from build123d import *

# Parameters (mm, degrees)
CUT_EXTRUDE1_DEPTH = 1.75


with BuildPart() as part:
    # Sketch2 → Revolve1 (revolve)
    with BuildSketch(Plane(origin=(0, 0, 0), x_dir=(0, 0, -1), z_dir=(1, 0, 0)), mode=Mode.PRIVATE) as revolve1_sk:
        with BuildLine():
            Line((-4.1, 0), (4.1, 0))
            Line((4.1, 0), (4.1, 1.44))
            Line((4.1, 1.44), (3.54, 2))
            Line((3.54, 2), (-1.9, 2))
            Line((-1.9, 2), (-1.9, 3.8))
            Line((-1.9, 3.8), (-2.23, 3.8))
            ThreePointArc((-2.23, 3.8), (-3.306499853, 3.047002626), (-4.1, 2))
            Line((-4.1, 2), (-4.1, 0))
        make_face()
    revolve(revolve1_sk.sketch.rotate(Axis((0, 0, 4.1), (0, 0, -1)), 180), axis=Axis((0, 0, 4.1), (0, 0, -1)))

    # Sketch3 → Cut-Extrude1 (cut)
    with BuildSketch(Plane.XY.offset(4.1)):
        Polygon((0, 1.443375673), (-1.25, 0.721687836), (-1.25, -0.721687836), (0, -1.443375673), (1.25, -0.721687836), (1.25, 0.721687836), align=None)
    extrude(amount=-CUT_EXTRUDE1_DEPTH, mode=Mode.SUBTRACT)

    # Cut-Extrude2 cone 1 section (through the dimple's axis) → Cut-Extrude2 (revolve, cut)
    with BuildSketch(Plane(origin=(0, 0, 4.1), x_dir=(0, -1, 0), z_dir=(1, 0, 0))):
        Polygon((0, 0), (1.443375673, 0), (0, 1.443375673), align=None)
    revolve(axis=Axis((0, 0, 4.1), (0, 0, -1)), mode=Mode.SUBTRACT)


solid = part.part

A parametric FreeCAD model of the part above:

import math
import FreeCAD as App
import Part
import Sketcher
Q = App.Units.Quantity

doc = App.newDocument("Part")
body = doc.addObject("PartDesign::Body", "Body")

# Sketch on YZ plane
sketch1 = body.newObject("Sketcher::SketchObject", "Sketch")
sketch1.AttachmentSupport = (doc.getObject("YZ_Plane"), [""])
sketch1.MapMode = "FlatFace"
sketch1.addGeometry(Part.LineSegment(App.Vector(0, 4.1, 0), App.Vector(0, -4.1, 0)), False)
sketch1.addGeometry(Part.LineSegment(App.Vector(0, -4.1, 0), App.Vector(1.44, -4.1, 0)), False)
sketch1.addGeometry(Part.LineSegment(App.Vector(1.44, -4.1, 0), App.Vector(2, -3.54, 0)), False)
sketch1.addGeometry(Part.LineSegment(App.Vector(2, -3.54, 0), App.Vector(2, 1.9, 0)), False)
sketch1.addGeometry(Part.LineSegment(App.Vector(2, 1.9, 0), App.Vector(3.8, 1.9, 0)), False)
sketch1.addGeometry(Part.LineSegment(App.Vector(3.8, 1.9, 0), App.Vector(3.8, 2.23, 0)), False)
sketch1.addGeometry(Part.ArcOfCircle(Part.Circle(App.Vector(0, 0.373556, 0), App.Vector(0, 0, 1), 4.22923), math.radians(26.03726), math.radians(61.777335)), False)
sketch1.addGeometry(Part.LineSegment(App.Vector(2, 4.1, 0), App.Vector(0, 4.1, 0)), False)
sketch1.addConstraint(Sketcher.Constraint("Coincident", 0, 2, 1, 1))
sketch1.addConstraint(Sketcher.Constraint("Coincident", 1, 2, 2, 1))
sketch1.addConstraint(Sketcher.Constraint("Coincident", 2, 2, 3, 1))
sketch1.addConstraint(Sketcher.Constraint("Coincident", 3, 2, 4, 1))
sketch1.addConstraint(Sketcher.Constraint("Coincident", 4, 2, 5, 1))
sketch1.addConstraint(Sketcher.Constraint("Coincident", 5, 2, 6, 1))
sketch1.addConstraint(Sketcher.Constraint("Coincident", 6, 2, 7, 1))
sketch1.addConstraint(Sketcher.Constraint("Coincident", 7, 2, 0, 1))
sketch1.addConstraint(Sketcher.Constraint("Vertical", 0))
sketch1.addConstraint(Sketcher.Constraint("Horizontal", 1))
sketch1.addConstraint(Sketcher.Constraint("Vertical", 3))
sketch1.addConstraint(Sketcher.Constraint("Horizontal", 4))
sketch1.addConstraint(Sketcher.Constraint("Vertical", 5))
sketch1.addConstraint(Sketcher.Constraint("Horizontal", 7))
sketch1.addConstraint(Sketcher.Constraint("Symmetric", 0, 2, 7, 2, -1, 1))
sketch1.addConstraint(Sketcher.Constraint("PointOnObject", 6, 3, -2))
sketch1.addConstraint(Sketcher.Constraint("Vertical", 3, 2, 6, 2))
sketch1.addConstraint(Sketcher.Constraint("DistanceX", 7, 2, 7, 1, Q("2 mm")))
sketch1.addConstraint(Sketcher.Constraint("Angle", 2, Q("45 deg")))
sketch1.addConstraint(Sketcher.Constraint("DistanceX", 4, 1, 4, 2, Q("1.8 mm")))
sketch1.addConstraint(Sketcher.Constraint("DistanceY", 0, 2, 0, 1, Q("8.2 mm")))
sketch1.addConstraint(Sketcher.Constraint("DistanceY", 1, 2, 3, 2, Q("6 mm")))
sketch1.addConstraint(Sketcher.Constraint("DistanceX", 1, 1, 1, 2, Q("1.44 mm")))
sketch1.addConstraint(Sketcher.Constraint("DistanceY", 5, 1, 5, 2, Q("0.33 mm")))
revolution = body.newObject("PartDesign::Revolution", "Revolution")
revolution.Profile = sketch1
revolution.ReferenceAxis = (sketch1, ["V_Axis"])
revolution.Angle = 360

# Sketch on XY plane
sketch2 = body.newObject("Sketcher::SketchObject", "Sketch001")
sketch2.AttachmentSupport = (doc.getObject("XY_Plane"), [""])
sketch2.MapMode = "FlatFace"
sketch2.AttachmentOffset = App.Placement(App.Vector(0, 0, 4.1), App.Rotation())
sketch2.addGeometry(Part.LineSegment(App.Vector(0, 1.443376, 0), App.Vector(-1.25, 0.721688, 0)), False)
sketch2.addGeometry(Part.LineSegment(App.Vector(-1.25, 0.721688, 0), App.Vector(-1.25, -0.721688, 0)), False)
sketch2.addGeometry(Part.LineSegment(App.Vector(-1.25, -0.721688, 0), App.Vector(0, -1.443376, 0)), False)
sketch2.addGeometry(Part.LineSegment(App.Vector(0, -1.443376, 0), App.Vector(1.25, -0.721688, 0)), False)
sketch2.addGeometry(Part.LineSegment(App.Vector(1.25, -0.721688, 0), App.Vector(1.25, 0.721688, 0)), False)
sketch2.addGeometry(Part.LineSegment(App.Vector(1.25, 0.721688, 0), App.Vector(0, 1.443376, 0)), False)
sketch2.addConstraint(Sketcher.Constraint("Coincident", 0, 2, 1, 1))
sketch2.addConstraint(Sketcher.Constraint("Coincident", 1, 2, 2, 1))
sketch2.addConstraint(Sketcher.Constraint("Coincident", 2, 2, 3, 1))
sketch2.addConstraint(Sketcher.Constraint("Coincident", 3, 2, 4, 1))
sketch2.addConstraint(Sketcher.Constraint("Coincident", 4, 2, 5, 1))
sketch2.addConstraint(Sketcher.Constraint("Coincident", 5, 2, 0, 1))
sketch2.addConstraint(Sketcher.Constraint("Vertical", 1))
sketch2.addConstraint(Sketcher.Constraint("Vertical", 4))
sketch2.addConstraint(Sketcher.Constraint("Symmetric", 0, 2, 3, 2, -1, 1))
sketch2.addConstraint(Sketcher.Constraint("Symmetric", 2, 2, 5, 2, -1, 1))
sketch2.addConstraint(Sketcher.Constraint("PointOnObject", 2, 2, -2))
sketch2.addConstraint(Sketcher.Constraint("Parallel", 2, 5))
sketch2.addConstraint(Sketcher.Constraint("Horizontal", 1, 2, 3, 2))
sketch2.addConstraint(Sketcher.Constraint("Angle", 0, Q("-150 deg")))
sketch2.addConstraint(Sketcher.Constraint("DistanceX", 1, 2, 3, 2, Q("2.5 mm")))
sketch2.addConstraint(Sketcher.Constraint("DistanceY", 1, 2, 1, 1, Q("1.443376 mm")))
pocket1 = body.newObject("PartDesign::Pocket", "Pocket")
pocket1.Profile = sketch2
pocket1.Length = 1.75

# Sketch on YZ plane
sketch3 = body.newObject("Sketcher::SketchObject", "Sketch002")
sketch3.AttachmentSupport = (doc.getObject("YZ_Plane"), [""])
sketch3.MapMode = "FlatFace"
sketch3.addGeometry(Part.LineSegment(App.Vector(0, 4.1, 0), App.Vector(-1.443376, 4.1, 0)), False)
sketch3.addGeometry(Part.LineSegment(App.Vector(-1.443376, 4.1, 0), App.Vector(0, 2.656624, 0)), False)
sketch3.addGeometry(Part.LineSegment(App.Vector(0, 2.656624, 0), App.Vector(0, 4.1, 0)), False)
sketch3.addConstraint(Sketcher.Constraint("Coincident", 0, 2, 1, 1))
sketch3.addConstraint(Sketcher.Constraint("Coincident", 1, 2, 2, 1))
sketch3.addConstraint(Sketcher.Constraint("Coincident", 2, 2, 0, 1))
sketch3.addConstraint(Sketcher.Constraint("Horizontal", 0))
sketch3.addConstraint(Sketcher.Constraint("Vertical", 2))
sketch3.addConstraint(Sketcher.Constraint("PointOnObject", 1, 2, -2))
sketch3.addConstraint(Sketcher.Constraint("Equal", 0, 2))
sketch3.addConstraint(Sketcher.Constraint("DistanceY", -1, 1, 0, 2, Q("4.1 mm")))
sketch3.addConstraint(Sketcher.Constraint("Distance", 1, Q("2.041241 mm")))
groove = body.newObject("PartDesign::Groove", "Groove")
groove.Profile = sketch3
groove.ReferenceAxis = (sketch3, ["V_Axis"])
groove.Angle = 360

doc.recompute()
